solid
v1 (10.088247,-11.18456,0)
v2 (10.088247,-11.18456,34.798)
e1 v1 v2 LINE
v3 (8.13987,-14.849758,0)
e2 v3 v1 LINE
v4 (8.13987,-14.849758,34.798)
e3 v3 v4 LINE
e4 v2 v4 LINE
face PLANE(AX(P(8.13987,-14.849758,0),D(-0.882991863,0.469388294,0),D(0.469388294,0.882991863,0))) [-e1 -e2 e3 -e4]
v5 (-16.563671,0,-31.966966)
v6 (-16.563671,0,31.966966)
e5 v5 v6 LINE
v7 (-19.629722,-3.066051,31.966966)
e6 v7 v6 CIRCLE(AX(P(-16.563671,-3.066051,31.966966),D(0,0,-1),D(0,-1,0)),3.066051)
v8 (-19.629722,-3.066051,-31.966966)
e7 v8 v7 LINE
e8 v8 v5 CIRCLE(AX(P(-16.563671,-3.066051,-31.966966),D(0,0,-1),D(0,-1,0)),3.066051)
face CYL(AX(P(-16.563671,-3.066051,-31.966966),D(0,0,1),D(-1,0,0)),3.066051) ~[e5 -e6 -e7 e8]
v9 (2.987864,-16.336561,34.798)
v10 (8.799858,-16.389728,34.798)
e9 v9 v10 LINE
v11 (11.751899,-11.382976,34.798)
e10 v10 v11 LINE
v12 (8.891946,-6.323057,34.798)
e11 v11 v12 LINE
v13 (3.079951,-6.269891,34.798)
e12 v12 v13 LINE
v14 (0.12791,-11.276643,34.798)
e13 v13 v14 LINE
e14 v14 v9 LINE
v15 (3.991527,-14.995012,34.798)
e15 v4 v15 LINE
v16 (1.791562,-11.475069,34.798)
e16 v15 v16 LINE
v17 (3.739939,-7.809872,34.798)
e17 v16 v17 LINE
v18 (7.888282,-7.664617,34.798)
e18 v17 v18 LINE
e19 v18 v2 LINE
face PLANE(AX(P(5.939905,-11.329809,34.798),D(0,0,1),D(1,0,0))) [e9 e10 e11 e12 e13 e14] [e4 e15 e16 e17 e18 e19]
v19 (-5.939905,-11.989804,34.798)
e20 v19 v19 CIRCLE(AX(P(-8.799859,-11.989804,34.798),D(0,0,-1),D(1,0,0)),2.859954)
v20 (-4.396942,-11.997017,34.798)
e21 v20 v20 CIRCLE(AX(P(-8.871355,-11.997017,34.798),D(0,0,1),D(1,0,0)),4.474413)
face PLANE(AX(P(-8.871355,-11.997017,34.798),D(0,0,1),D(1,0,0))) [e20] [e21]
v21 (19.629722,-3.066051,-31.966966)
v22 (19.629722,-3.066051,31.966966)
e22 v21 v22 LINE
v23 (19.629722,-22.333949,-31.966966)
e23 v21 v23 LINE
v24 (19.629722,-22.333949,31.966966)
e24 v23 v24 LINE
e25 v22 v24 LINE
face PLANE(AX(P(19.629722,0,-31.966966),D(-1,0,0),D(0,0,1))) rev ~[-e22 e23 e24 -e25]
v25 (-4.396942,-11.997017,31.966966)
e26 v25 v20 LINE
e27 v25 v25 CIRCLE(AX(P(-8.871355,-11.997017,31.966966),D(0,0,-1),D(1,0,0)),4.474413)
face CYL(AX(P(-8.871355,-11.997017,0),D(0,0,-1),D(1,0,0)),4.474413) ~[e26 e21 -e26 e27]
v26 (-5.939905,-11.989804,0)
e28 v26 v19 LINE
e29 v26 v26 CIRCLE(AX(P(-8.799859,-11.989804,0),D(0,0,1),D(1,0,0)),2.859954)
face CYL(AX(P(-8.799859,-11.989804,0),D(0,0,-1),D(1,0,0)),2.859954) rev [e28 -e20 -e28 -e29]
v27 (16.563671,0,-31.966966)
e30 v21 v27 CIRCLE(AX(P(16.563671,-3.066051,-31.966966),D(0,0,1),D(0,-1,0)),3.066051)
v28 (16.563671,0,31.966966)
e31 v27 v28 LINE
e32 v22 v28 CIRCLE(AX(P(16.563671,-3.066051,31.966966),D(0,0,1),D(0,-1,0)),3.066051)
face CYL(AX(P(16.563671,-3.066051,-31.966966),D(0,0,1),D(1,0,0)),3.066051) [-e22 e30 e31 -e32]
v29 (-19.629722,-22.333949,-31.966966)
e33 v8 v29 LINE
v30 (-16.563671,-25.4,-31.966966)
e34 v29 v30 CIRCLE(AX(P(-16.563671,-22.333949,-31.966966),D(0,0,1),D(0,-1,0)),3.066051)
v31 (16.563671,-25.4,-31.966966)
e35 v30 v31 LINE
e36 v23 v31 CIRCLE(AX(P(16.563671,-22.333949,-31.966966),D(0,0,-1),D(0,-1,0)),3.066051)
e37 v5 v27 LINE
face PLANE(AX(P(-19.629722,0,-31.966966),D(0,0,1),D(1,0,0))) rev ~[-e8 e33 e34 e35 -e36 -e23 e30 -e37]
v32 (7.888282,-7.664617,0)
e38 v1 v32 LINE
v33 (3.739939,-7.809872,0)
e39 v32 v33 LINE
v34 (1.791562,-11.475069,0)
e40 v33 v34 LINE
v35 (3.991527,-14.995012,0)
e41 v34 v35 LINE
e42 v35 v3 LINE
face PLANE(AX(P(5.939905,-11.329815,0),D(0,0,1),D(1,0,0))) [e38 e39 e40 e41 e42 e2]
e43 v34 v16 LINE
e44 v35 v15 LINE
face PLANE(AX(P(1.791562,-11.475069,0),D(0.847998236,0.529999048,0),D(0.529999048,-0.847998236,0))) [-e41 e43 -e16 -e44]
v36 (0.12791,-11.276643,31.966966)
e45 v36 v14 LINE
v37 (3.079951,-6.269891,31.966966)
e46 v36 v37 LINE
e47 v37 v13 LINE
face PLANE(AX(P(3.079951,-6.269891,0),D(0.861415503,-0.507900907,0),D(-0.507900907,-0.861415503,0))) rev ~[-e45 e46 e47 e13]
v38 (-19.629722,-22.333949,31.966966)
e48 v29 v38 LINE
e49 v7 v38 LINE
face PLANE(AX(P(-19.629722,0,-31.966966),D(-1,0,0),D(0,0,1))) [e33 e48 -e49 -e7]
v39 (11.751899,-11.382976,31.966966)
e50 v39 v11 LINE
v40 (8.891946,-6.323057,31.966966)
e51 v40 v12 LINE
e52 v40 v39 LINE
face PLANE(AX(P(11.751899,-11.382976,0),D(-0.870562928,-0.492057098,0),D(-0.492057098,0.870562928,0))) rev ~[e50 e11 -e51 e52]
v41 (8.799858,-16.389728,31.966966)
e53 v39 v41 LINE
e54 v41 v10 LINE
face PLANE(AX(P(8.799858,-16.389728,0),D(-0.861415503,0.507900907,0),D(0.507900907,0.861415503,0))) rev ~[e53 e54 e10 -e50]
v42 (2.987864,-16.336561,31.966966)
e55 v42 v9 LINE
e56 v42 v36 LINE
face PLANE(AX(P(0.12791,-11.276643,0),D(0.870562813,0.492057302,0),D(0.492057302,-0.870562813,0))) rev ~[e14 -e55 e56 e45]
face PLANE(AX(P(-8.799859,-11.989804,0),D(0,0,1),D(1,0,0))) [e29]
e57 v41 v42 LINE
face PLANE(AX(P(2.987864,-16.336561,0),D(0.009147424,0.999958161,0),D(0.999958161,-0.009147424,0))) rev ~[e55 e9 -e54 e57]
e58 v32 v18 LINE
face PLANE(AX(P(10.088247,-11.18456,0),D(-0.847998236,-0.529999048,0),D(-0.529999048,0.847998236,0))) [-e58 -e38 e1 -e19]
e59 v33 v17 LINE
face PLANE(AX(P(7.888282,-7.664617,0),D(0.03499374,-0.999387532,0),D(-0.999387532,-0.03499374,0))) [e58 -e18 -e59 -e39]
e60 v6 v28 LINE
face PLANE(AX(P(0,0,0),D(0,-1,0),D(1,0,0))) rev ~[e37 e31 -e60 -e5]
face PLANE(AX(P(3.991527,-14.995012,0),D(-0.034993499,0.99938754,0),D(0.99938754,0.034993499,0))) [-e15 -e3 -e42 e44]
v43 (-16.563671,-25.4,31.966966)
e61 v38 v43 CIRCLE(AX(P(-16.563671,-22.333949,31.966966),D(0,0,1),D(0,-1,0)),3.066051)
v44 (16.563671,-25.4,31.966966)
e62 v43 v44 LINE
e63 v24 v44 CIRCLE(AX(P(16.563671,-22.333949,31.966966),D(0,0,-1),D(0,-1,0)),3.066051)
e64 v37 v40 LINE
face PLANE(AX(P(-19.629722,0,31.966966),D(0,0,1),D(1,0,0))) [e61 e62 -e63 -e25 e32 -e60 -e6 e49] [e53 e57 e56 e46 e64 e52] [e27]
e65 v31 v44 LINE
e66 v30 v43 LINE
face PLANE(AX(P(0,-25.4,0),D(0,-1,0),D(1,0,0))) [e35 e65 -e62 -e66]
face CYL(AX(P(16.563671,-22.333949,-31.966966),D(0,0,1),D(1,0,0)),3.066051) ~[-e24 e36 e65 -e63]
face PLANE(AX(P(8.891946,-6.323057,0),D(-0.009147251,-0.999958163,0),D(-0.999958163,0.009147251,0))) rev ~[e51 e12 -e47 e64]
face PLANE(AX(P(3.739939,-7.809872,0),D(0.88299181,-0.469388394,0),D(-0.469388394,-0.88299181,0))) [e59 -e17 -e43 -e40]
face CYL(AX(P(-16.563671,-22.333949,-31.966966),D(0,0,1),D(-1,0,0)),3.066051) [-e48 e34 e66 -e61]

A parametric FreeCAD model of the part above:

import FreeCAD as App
import Part
import Sketcher
Q = App.Units.Quantity


def edges_at(feature, points):
    """Names of the edges that pass closest to the given points."""
    edges = feature.Shape.Edges
    near = lambda p: min(range(len(edges)), key=lambda i: edges[i].distToShape(Part.Vertex(*p))[0])
    return sorted({f"Edge{near(p) + 1}" for p in points})


def add_polygon(sketch, points):
    """Adds a closed chain of lines whose ends are joined by coincident constraints."""
    first, n = sketch.GeometryCount, len(points)
    for a, b in zip(points, points[1:] + points[:1]):
        sketch.addGeometry(Part.LineSegment(App.Vector(*a, 0), App.Vector(*b, 0)), False)
    for i in range(n):
        sketch.addConstraint(Sketcher.Constraint("Coincident", first + i, 2, first + (i + 1) % n, 1))

doc = App.newDocument("Part")
body = doc.addObject("PartDesign::Body", "Body")

sketch1 = doc.addObject("Sketcher::SketchObject", "Sketch")
body.addObject(sketch1)
sketch1.AttachmentSupport = (doc.XZ_Plane, [""])
sketch1.MapMode = "FlatFace"
add_polygon(sketch1, [(-20, 32), (-20, -32), (20, -32), (20, 32)])
sketch1.addConstraint([
    Sketcher.Constraint("Vertical", 0),
    Sketcher.Constraint("Horizontal", 1),
    Sketcher.Constraint("Vertical", 2),
    Sketcher.Constraint("Horizontal", 3),
    Sketcher.Constraint("Symmetric", 0, 2, 2, 2, -1, 1),
    Sketcher.Constraint("DistanceX", 1, 1, 1, 2, Q("39.259444 mm")),
    Sketcher.Constraint("DistanceY", 0, 2, 0, 1, Q("63.933932 mm")),
])
pad1 = doc.addObject("PartDesign::Pad", "Pad")
body.addObject(pad1)
pad1.Profile = sketch1
pad1.Length = Q("1 in")
doc.recompute()

fillet = doc.addObject("PartDesign::Fillet", "Fillet")
body.addObject(fillet)
fillet.Base = (pad1, edges_at(pad1, [
    (-19.63, -25.4, 0),
    (19.63, 0, 0),
    (19.63, -25.4, 0),
    (-19.63, 0, 0),
]))
fillet.Radius = 3.066051

sketch2 = doc.addObject("Sketcher::SketchObject", "Sketch001")
body.addObject(sketch2)
sketch2.AttachmentSupport = (doc.XY_Plane, [""])
sketch2.MapMode = "FlatFace"
sketch2.addGeometry(Part.Circle(App.Vector(-8.9, -12, 0), App.Vector(0, 0, 1), 4.5), False)
sketch2.addConstraint([
    Sketcher.Constraint("Diameter", 0, Q("8.948826 mm")),
    Sketcher.Constraint("DistanceX", 0, 3, -1, 1, Q("8.871355 mm")),
    Sketcher.Constraint("DistanceY", 0, 3, -1, 1, Q("11.997017 mm")),
])
pad2 = doc.addObject("PartDesign::Pad", "Pad001")
body.addObject(pad2)
pad2.Profile = sketch2
pad2.Length = Q("1.37 in")

sketch3 = doc.addObject("Sketcher::SketchObject", "Sketch002")
body.addObject(sketch3)
sketch3.AttachmentSupport = (doc.XY_Plane, [""])
sketch3.MapMode = "FlatFace"
add_polygon(sketch3, [(3, -16), (9, -16), (12, -11), (9, -6), (3, -6), (0, -11)])
sketch3.addConstraint([
    Sketcher.Constraint("Parallel", 0, 3),
    Sketcher.Constraint("Parallel", 1, 4),
    Sketcher.Constraint("Parallel", 2, 5),
    Sketcher.Constraint("Equal", 0, 1),
    Sketcher.Constraint("Equal", 1, 2),
    Sketcher.Constraint("Equal", 2, 3),
    Sketcher.Constraint("DistanceX", -1, 1, 1, 2, Q("11.751899 mm")),
    Sketcher.Constraint("Distance", 1, Q("5.812238 mm")),
    Sketcher.Constraint("DistanceY", 0, 2, -1, 1, Q("16.389728 mm")),
    Sketcher.Constraint("DistanceX", -1, 1, 3, 2, Q("3.079951 mm")),
    Sketcher.Constraint("DistanceY", 3, 2, -1, 1, Q("6.269891 mm")),
    Sketcher.Constraint("DistanceX", -1, 1, 4, 2, Q("0.12791 mm")),
])
pad3 = doc.addObject("PartDesign::Pad", "Pad002")
body.addObject(pad3)
pad3.Profile = sketch3
pad3.Length = Q("1.37 in")

sketch4 = doc.addObject("Sketcher::SketchObject", "Sketch003")
body.addObject(sketch4)
sketch4.AttachmentSupport = (doc.XY_Plane, [""])
sketch4.MapMode = "FlatFace"
sketch4.addGeometry(Part.Circle(App.Vector(-8.8, -12, 0), App.Vector(0, 0, 1), 2.9), False)
add_polygon(sketch4, [(7.9, -7.7), (3.7, -7.8), (1.8, -11.5), (4, -15), (8.1, -14.8), (10.1, -11.2)])
sketch4.addConstraint([
    Sketcher.Constraint("Parallel", 1, 4),
    Sketcher.Constraint("Parallel", 2, 5),
    Sketcher.Constraint("Parallel", 3, 6),
    Sketcher.Constraint("Equal", 1, 2),
    Sketcher.Constraint("Equal", 2, 3),
    Sketcher.Constraint("Equal", 3, 4),
    Sketcher.Constraint("Diameter", 0, Q("5.719908 mm")),
    Sketcher.Constraint("DistanceY", 4, 2, 5, 2, Q("3.665198 mm")),
    Sketcher.Constraint("DistanceX", 0, 3, -1, 1, Q("8.799859 mm")),
    Sketcher.Constraint("DistanceX", -1, 1, 1, 2, Q("3.739939 mm")),
    Sketcher.Constraint("DistanceY", 2, 2, -1, 1, Q("11.475069 mm")),
    Sketcher.Constraint("DistanceY", 3, 2, -1, 1, Q("14.995012 mm")),
    Sketcher.Constraint("DistanceX", -1, 1, 4, 2, Q("8.13987 mm")),
    Sketcher.Constraint("DistanceY", 5, 2, -1, 1, Q("11.18456 mm")),
    Sketcher.Constraint("DistanceY", 0, 3, 1, 2, Q("4.179932 mm")),
])
pocket1 = doc.addObject("PartDesign::Pocket", "Pocket")
body.addObject(pocket1)
pocket1.Profile = sketch4
pocket1.Length = Q("1.39 in")
pocket1.Reversed = True

doc.recompute()
